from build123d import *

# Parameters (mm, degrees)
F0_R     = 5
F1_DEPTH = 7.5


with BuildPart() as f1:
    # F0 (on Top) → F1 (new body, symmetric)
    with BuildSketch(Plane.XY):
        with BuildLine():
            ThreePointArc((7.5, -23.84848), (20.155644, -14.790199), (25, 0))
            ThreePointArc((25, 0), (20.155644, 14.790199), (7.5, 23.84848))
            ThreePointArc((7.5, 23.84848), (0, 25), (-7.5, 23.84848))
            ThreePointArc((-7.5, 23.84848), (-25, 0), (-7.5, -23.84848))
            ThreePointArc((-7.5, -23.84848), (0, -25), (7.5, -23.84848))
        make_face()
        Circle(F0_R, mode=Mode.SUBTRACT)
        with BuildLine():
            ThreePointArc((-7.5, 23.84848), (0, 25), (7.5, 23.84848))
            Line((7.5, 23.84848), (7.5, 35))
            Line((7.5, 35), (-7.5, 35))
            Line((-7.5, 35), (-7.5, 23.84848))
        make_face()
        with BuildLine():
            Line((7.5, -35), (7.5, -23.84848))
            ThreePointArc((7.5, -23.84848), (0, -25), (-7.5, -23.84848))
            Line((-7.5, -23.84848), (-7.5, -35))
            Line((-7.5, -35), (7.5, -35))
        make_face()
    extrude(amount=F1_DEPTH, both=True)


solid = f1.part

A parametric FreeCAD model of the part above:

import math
import FreeCAD as App
import Part
import Sketcher

V = App.Vector

doc = App.newDocument("Part")
body = doc.addObject("PartDesign::Body", "Body")

sketch1 = body.newObject("Sketcher::SketchObject", "Sketch")
sketch1.AttachmentSupport = (doc.getObject("XY_Plane"), [""])
sketch1.MapMode = "FlatFace"
sketch1.addGeometry([
    Part.ArcOfCircle(Part.Circle(V(0, 0, 0), V(0, 0, 1), 25), math.radians(-73), math.radians(0)),
    Part.ArcOfCircle(Part.Circle(V(0, 0, 0), V(0, 0, 1), 25), math.radians(0), math.radians(73)),
    Part.LineSegment(V(8, 24, 0), V(8, 35, 0)),
    Part.LineSegment(V(8, 35, 0), V(-8, 35, 0)),
    Part.LineSegment(V(-8, 35, 0), V(-8, 24, 0)),
    Part.ArcOfCircle(Part.Circle(V(0, 0, 0), V(0, 0, 1), 25), math.radians(107), math.radians(253)),
    Part.LineSegment(V(-8, -24, 0), V(-8, -35, 0)),
    Part.LineSegment(V(-8, -35, 0), V(8, -35, 0)),
    Part.LineSegment(V(8, -35, 0), V(8, -24, 0)),
    Part.Circle(V(0, 0, 0), V(0, 0, 1), 5),
], False)
sketch1.addConstraint([
    Sketcher.Constraint("Tangent", 0, 2, 1, 1),
    Sketcher.Constraint("Coincident", 1, 2, 2, 1),
    Sketcher.Constraint("Coincident", 2, 2, 3, 1),
    Sketcher.Constraint("Coincident", 3, 2, 4, 1),
    Sketcher.Constraint("Coincident", 4, 2, 5, 1),
    Sketcher.Constraint("Coincident", 5, 2, 6, 1),
    Sketcher.Constraint("Coincident", 6, 2, 7, 1),
    Sketcher.Constraint("Coincident", 7, 2, 8, 1),
    Sketcher.Constraint("Coincident", 8, 2, 0, 1),
    Sketcher.Constraint("Vertical", 2),
    Sketcher.Constraint("Horizontal", 3),
    Sketcher.Constraint("Vertical", 4),
    Sketcher.Constraint("Vertical", 6),
    Sketcher.Constraint("Horizontal", 7),
    Sketcher.Constraint("Vertical", 8),
    Sketcher.Constraint("Coincident", 0, 3, -1, 1),
    Sketcher.Constraint("Coincident", 5, 3, -1, 1),
    Sketcher.Constraint("Coincident", 9, 3, -1, 1),
    Sketcher.Constraint("Equal", 0, 1),
    Sketcher.Constraint("Symmetric", 1, 2, 5, 2, -1, 1),
    Sketcher.Constraint("Symmetric", 3, 2, 7, 2, -1, 1),
    Sketcher.Constraint("PointOnObject", 0, 2, -1),
    Sketcher.Constraint("Horizontal", 1, 2, 4, 2),
    Sketcher.Constraint("Diameter", 9, 10.0),
    Sketcher.Constraint("Radius", 5, 25.0),
    Sketcher.Constraint("DistanceX", 3, 2, 3, 1, 15.0),
    Sketcher.Constraint("DistanceY", -1, 1, 2, 2, 35.0),
])
pad1 = body.newObject("PartDesign::Pad", "Pad")
pad1.Profile = sketch1
pad1.Length = 15
pad1.Midplane = True

doc.recompute()
